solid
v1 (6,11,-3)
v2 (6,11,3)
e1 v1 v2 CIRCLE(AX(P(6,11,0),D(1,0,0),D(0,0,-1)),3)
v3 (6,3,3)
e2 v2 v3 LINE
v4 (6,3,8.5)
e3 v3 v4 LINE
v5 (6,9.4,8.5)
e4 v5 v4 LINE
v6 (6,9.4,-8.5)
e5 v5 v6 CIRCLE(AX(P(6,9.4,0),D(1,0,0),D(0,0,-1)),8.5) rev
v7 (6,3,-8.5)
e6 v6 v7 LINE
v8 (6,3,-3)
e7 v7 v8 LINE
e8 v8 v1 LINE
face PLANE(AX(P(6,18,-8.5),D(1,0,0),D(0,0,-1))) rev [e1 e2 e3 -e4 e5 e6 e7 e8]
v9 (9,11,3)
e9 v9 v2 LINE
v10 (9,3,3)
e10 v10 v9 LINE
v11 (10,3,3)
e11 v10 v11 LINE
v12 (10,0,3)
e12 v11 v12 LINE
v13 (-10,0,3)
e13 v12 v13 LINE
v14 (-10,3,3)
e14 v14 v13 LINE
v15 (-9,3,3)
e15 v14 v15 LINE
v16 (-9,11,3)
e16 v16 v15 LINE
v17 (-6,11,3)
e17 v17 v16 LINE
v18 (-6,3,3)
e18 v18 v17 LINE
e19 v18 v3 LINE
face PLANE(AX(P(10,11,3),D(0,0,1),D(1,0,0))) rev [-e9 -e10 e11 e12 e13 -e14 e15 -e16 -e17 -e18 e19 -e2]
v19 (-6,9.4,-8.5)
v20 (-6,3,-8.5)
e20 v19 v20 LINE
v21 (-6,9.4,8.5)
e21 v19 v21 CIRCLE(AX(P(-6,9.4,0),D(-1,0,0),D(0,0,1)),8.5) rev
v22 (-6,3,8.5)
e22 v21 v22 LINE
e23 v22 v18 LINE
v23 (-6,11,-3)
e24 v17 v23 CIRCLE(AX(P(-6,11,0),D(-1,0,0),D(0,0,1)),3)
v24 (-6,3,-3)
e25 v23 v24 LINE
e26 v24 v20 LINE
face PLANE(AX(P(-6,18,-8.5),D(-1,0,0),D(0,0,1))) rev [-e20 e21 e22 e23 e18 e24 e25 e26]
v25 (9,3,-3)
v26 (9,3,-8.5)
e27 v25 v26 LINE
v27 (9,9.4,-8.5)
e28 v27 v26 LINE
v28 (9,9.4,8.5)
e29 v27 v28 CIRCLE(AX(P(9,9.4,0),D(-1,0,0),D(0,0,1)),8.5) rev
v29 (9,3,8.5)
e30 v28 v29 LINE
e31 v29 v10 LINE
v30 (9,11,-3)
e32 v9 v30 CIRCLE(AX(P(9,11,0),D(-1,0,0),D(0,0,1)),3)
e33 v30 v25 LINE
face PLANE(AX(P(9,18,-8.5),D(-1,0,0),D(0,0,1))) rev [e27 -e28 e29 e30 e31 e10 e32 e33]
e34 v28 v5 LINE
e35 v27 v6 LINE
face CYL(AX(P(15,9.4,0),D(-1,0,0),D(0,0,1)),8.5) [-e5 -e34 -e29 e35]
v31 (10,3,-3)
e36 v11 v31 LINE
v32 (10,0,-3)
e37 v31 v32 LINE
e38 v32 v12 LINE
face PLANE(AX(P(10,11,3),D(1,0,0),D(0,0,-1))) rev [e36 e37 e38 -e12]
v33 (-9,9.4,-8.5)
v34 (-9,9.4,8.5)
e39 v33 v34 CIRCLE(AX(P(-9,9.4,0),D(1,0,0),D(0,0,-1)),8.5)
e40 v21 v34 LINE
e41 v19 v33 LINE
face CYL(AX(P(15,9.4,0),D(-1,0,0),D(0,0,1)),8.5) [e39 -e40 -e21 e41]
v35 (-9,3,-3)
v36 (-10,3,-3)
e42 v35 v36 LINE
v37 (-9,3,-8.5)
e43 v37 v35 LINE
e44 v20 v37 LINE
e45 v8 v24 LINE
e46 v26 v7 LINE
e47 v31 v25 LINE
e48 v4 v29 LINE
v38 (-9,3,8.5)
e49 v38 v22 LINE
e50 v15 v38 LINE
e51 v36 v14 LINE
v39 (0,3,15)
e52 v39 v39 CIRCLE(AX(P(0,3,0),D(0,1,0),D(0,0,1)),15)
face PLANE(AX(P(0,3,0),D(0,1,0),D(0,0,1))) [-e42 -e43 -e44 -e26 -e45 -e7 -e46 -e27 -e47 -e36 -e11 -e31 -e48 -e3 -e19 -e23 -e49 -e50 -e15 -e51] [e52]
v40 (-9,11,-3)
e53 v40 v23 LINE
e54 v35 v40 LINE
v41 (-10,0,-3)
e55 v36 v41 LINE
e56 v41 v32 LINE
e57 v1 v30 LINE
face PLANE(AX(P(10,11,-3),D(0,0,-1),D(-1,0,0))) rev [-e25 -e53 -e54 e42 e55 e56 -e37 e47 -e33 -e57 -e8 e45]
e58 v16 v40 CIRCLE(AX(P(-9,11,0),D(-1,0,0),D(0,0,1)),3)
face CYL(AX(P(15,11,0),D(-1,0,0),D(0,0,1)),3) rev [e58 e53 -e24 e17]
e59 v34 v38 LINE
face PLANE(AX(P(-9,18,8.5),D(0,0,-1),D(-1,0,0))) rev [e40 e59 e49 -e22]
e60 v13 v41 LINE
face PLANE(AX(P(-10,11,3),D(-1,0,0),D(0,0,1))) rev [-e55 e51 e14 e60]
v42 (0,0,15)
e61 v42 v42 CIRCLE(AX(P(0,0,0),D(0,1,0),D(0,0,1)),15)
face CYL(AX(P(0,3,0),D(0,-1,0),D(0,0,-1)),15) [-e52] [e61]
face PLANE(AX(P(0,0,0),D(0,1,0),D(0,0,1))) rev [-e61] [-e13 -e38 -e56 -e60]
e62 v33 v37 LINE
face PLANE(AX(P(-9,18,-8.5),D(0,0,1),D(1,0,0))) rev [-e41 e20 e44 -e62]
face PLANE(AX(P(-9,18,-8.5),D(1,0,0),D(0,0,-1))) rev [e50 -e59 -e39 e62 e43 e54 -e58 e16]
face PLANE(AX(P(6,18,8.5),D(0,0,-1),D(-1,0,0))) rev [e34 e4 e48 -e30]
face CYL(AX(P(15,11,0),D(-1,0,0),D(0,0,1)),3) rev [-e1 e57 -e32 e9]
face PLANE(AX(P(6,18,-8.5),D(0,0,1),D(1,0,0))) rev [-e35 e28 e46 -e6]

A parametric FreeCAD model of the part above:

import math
import FreeCAD as App
import Part
import Sketcher

V = App.Vector


def add_polygon(sketch, points):
    """Adds a closed chain of lines whose ends are joined by coincident constraints."""
    first, n = sketch.GeometryCount, len(points)
    for a, b in zip(points, points[1:] + points[:1]):
        sketch.addGeometry(Part.LineSegment(App.Vector(*a, 0), App.Vector(*b, 0)), False)
    for i in range(n):
        sketch.addConstraint(Sketcher.Constraint("Coincident", first + i, 2, first + (i + 1) % n, 1))

doc = App.newDocument("Part")
params = doc.addObject("Spreadsheet::Sheet", "Params")
for row, (alias, value) in enumerate([
    ("sketch1_diameter", "30 mm"),
    ("pad1_length", "3 mm"),
    ("sketch2_width", "3 mm"),
    ("sketch2_height", "17 mm"),
    ("pad2_length", "15 mm"),
    ("sketch3_radius", "8.5 mm"),
    ("sketch3_width", "8.6 mm"),
    ("sketch4_width", "20 mm"),
    ("sketch4_height", "6 mm"),
    ("pocket2_length", "11 mm"),
    ("sketch5_radius", "3 mm"),
], start=1):
    params.set(f"A{row}", alias)
    params.set(f"B{row}", "=" + value)
    params.setAlias(f"B{row}", alias)

body = doc.addObject("PartDesign::Body", "Body")

sketch1 = body.newObject("Sketcher::SketchObject", "Sketch")
sketch1.AttachmentSupport = (doc.getObject("XZ_Plane"), [""])
sketch1.MapMode = "FlatFace"
sketch1.addGeometry(Part.Circle(V(0, 0, 0), V(0, 0, 1), 15), False)
sketch1.addConstraint([
    Sketcher.Constraint("Coincident", 0, 3, -1, 1),
    Sketcher.Constraint("Diameter", 0, 30.0),
])
sketch1.setExpression("Constraints[1]", "Params.sketch1_diameter")
pad1 = body.newObject("PartDesign::Pad", "Pad")
pad1.Profile = sketch1
pad1.setExpression("Length", "Params.pad1_length")
pad1.Reversed = True

sketch2 = body.newObject("Sketcher::SketchObject", "Sketch001")
sketch2.AttachmentSupport = (doc.getObject("XZ_Plane"), [""])
sketch2.MapMode = "FlatFace"
sketch2.AttachmentOffset = App.Placement(V(0, 0, -3), App.Rotation())
add_polygon(sketch2, [(-9, -8.5), (-9, 8.5), (-6, 8.5), (-6, -8.5)])
add_polygon(sketch2, [(6, -8.5), (6, 8.5), (9, 8.5), (9, -8.5)])
sketch2.addConstraint([
    Sketcher.Constraint("Vertical", 0),
    Sketcher.Constraint("Horizontal", 1),
    Sketcher.Constraint("Vertical", 2),
    Sketcher.Constraint("Horizontal", 3),
    Sketcher.Constraint("Vertical", 4),
    Sketcher.Constraint("Horizontal", 5),
    Sketcher.Constraint("Vertical", 6),
    Sketcher.Constraint("Horizontal", 7),
    Sketcher.Constraint("Symmetric", 2, 2, 4, 2, -1, 1),
    Sketcher.Constraint("Symmetric", 0, 2, 6, 2, -1, 1),
    Sketcher.Constraint("Horizontal", 1, 2, 4, 2),
    Sketcher.Constraint("DistanceX", 1, 1, 1, 2, 3.0),
    Sketcher.Constraint("DistanceY", 0, 1, 0, 2, 17.0),
    Sketcher.Constraint("DistanceX", 0, 2, -1, 1, 9.0),
])
sketch2.setExpression("Constraints[19]", "Params.sketch2_width")
sketch2.setExpression("Constraints[20]", "Params.sketch2_height")
pad2 = body.newObject("PartDesign::Pad", "Pad001")
pad2.Profile = sketch2
pad2.setExpression("Length", "Params.pad2_length")
pad2.Reversed = True

sketch3 = body.newObject("Sketcher::SketchObject", "Sketch002")
sketch3.AttachmentSupport = (doc.getObject("YZ_Plane"), [""])
sketch3.MapMode = "FlatFace"
sketch3.AttachmentOffset = App.Placement(V(0, 0, -9), App.Rotation())
sketch3.addGeometry([
    Part.LineSegment(V(18, -8.5, 0), V(9.4, -8.5, 0)),
    Part.ArcOfCircle(Part.Circle(V(9.4, 0, 0), V(0, 0, 1), 8.5), math.radians(-90), math.radians(90)),
    Part.LineSegment(V(9.4, 8.5, 0), V(18, 8.5, 0)),
    Part.LineSegment(V(18, 8.5, 0), V(18, -8.5, 0)),
], False)
sketch3.addConstraint([
    Sketcher.Constraint("Tangent", 0, 2, 1, 1),
    Sketcher.Constraint("Tangent", 1, 2, 2, 1),
    Sketcher.Constraint("Coincident", 2, 2, 3, 1),
    Sketcher.Constraint("Coincident", 3, 2, 0, 1),
    Sketcher.Constraint("Horizontal", 0),
    Sketcher.Constraint("Horizontal", 2),
    Sketcher.Constraint("Vertical", 3),
    Sketcher.Constraint("PointOnObject", 1, 3, -1),
    Sketcher.Constraint("Radius", 1, 8.5),
    Sketcher.Constraint("DistanceX", 0, 2, 0, 1, 8.6),
    Sketcher.Constraint("DistanceX", -1, 1, 2, 2, 18.0),
])
sketch3.setExpression("Constraints[8]", "Params.sketch3_radius")
sketch3.setExpression("Constraints[9]", "Params.sketch3_width")
pocket1 = body.newObject("PartDesign::Pocket", "Pocket")
pocket1.Profile = sketch3
pocket1.Type = "ThroughAll"
pocket1.Reversed = True

sketch4 = body.newObject("Sketcher::SketchObject", "Sketch003")
sketch4.AttachmentSupport = (doc.getObject("XZ_Plane"), [""])
sketch4.MapMode = "FlatFace"
add_polygon(sketch4, [(10, -3), (10, 3), (-10, 3), (-10, -3)])
sketch4.addConstraint([
    Sketcher.Constraint("Vertical", 0),
    Sketcher.Constraint("Horizontal", 1),
    Sketcher.Constraint("Vertical", 2),
    Sketcher.Constraint("Horizontal", 3),
    Sketcher.Constraint("Symmetric", 0, 2, 2, 2, -1, 1),
    Sketcher.Constraint("DistanceX", 1, 2, 1, 1, 20.0),
    Sketcher.Constraint("DistanceY", 0, 1, 0, 2, 6.0),
])
sketch4.setExpression("Constraints[9]", "Params.sketch4_width")
sketch4.setExpression("Constraints[10]", "Params.sketch4_height")
pocket2 = body.newObject("PartDesign::Pocket", "Pocket001")
pocket2.Profile = sketch4
pocket2.setExpression("Length", "Params.pocket2_length")

sketch5 = body.newObject("Sketcher::SketchObject", "Sketch004")
sketch5.AttachmentSupport = (doc.getObject("YZ_Plane"), [""])
sketch5.MapMode = "FlatFace"
sketch5.AttachmentOffset = App.Placement(V(0, 0, -9), App.Rotation())
sketch5.addGeometry([
    Part.LineSegment(V(11, -3, 0), V(11, 3, 0)),
    Part.ArcOfCircle(Part.Circle(V(11, 0, 0), V(0, 0, 1), 3), math.radians(-90), math.radians(90)),
], False)
sketch5.addConstraint([
    Sketcher.Constraint("Coincident", 0, 1, 1, 1),
    Sketcher.Constraint("Coincident", 1, 2, 0, 2),
    Sketcher.Constraint("Vertical", 0),
    Sketcher.Constraint("PointOnObject", 1, 3, -1),
    Sketcher.Constraint("Vertical", 1, 3, 0, 1),
    Sketcher.Constraint("Radius", 1, 3.0),
    Sketcher.Constraint("DistanceX", -1, 1, 1, 3, 11.0),
])
sketch5.setExpression("Constraints[5]", "Params.sketch5_radius")
pocket3 = body.newObject("PartDesign::Pocket", "Pocket002")
pocket3.Profile = sketch5
pocket3.Type = "ThroughAll"
pocket3.Reversed = True

doc.recompute()
